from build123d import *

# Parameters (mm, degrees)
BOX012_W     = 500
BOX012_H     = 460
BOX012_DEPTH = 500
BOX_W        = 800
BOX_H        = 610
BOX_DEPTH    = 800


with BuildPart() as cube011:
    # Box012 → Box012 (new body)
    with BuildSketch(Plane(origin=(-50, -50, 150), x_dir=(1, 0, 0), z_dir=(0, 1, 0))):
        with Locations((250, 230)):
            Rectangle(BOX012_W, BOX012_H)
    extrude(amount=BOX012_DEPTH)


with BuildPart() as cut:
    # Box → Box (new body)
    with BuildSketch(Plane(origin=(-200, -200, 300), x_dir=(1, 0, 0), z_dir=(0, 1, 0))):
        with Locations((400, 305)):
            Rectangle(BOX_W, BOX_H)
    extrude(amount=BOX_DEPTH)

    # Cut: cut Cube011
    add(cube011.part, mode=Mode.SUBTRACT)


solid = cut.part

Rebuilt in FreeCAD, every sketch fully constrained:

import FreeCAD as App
import Part
import Sketcher

V = App.Vector

doc = App.newDocument("Part")
params = doc.addObject("Spreadsheet::Sheet", "Params")
for row, (alias, value) in enumerate([
    ("sketch1_width", "500 mm"),
    ("sketch1_height", "460 mm"),
    ("pad1_length", "500 mm"),
    ("sketch2_width", "800 mm"),
    ("sketch2_height", "610 mm"),
    ("pad2_length", "800 mm"),
], start=1):
    params.set(f"A{row}", alias)
    params.set(f"B{row}", "=" + value)
    params.setAlias(f"B{row}", alias)

body = doc.addObject("PartDesign::Body", "Body")

# Sketch on XZ plane
sketch1 = doc.addObject("Sketcher::SketchObject", "Sketch")
body.addObject(sketch1)
sketch1.AttachmentSupport = (doc.XZ_Plane, [""])
sketch1.MapMode = "FlatFace"
sketch1.AttachmentOffset = App.Placement(V(0, 0, 50), App.Rotation())
sketch1.addGeometry(Part.LineSegment(V(-50, -310, 0), V(-50, 150, 0)), False)
sketch1.addGeometry(Part.LineSegment(V(-50, 150, 0), V(450, 150, 0)), False)
sketch1.addGeometry(Part.LineSegment(V(450, 150, 0), V(450, -310, 0)), False)
sketch1.addGeometry(Part.LineSegment(V(450, -310, 0), V(-50, -310, 0)), False)
sketch1.addConstraint(Sketcher.Constraint("Coincident", 0, 2, 1, 1))
sketch1.addConstraint(Sketcher.Constraint("Coincident", 1, 2, 2, 1))
sketch1.addConstraint(Sketcher.Constraint("Coincident", 2, 2, 3, 1))
sketch1.addConstraint(Sketcher.Constraint("Coincident", 3, 2, 0, 1))
sketch1.addConstraint(Sketcher.Constraint("Vertical", 0))
sketch1.addConstraint(Sketcher.Constraint("Horizontal", 1))
sketch1.addConstraint(Sketcher.Constraint("Vertical", 2))
sketch1.addConstraint(Sketcher.Constraint("Horizontal", 3))
sketch1.addConstraint(Sketcher.Constraint("DistanceX", 1, 1, 1, 2, 500.0))
sketch1.addConstraint(Sketcher.Constraint("DistanceY", 0, 1, 0, 2, 460.0))
sketch1.addConstraint(Sketcher.Constraint("DistanceX", 0, 2, -1, 1, 50.0))
sketch1.addConstraint(Sketcher.Constraint("DistanceY", -1, 1, 0, 2, 150.0))
sketch1.setExpression("Constraints[8]", "Params.sketch1_width")
sketch1.setExpression("Constraints[9]", "Params.sketch1_height")
pad1 = doc.addObject("PartDesign::Pad", "Pad")
body.addObject(pad1)
pad1.Profile = sketch1
pad1.setExpression("Length", "Params.pad1_length")
pad1.Reversed = True
body2 = doc.addObject("PartDesign::Body", "Body001")

# Sketch on XZ plane
sketch2 = doc.addObject("Sketcher::SketchObject", "Sketch001")
body2.addObject(sketch2)
sketch2.AttachmentSupport = (doc.getObject("XZ_Plane001"), [""])
sketch2.MapMode = "FlatFace"
sketch2.AttachmentOffset = App.Placement(V(0, 0, 200), App.Rotation())
sketch2.addGeometry(Part.LineSegment(V(-200, -310, 0), V(-200, 300, 0)), False)
sketch2.addGeometry(Part.LineSegment(V(-200, 300, 0), V(600, 300, 0)), False)
sketch2.addGeometry(Part.LineSegment(V(600, 300, 0), V(600, -310, 0)), False)
sketch2.addGeometry(Part.LineSegment(V(600, -310, 0), V(-200, -310, 0)), False)
sketch2.addConstraint(Sketcher.Constraint("Coincident", 0, 2, 1, 1))
sketch2.addConstraint(Sketcher.Constraint("Coincident", 1, 2, 2, 1))
sketch2.addConstraint(Sketcher.Constraint("Coincident", 2, 2, 3, 1))
sketch2.addConstraint(Sketcher.Constraint("Coincident", 3, 2, 0, 1))
sketch2.addConstraint(Sketcher.Constraint("Vertical", 0))
sketch2.addConstraint(Sketcher.Constraint("Horizontal", 1))
sketch2.addConstraint(Sketcher.Constraint("Vertical", 2))
sketch2.addConstraint(Sketcher.Constraint("Horizontal", 3))
sketch2.addConstraint(Sketcher.Constraint("DistanceX", 1, 1, 1, 2, 800.0))
sketch2.addConstraint(Sketcher.Constraint("DistanceY", 0, 1, 0, 2, 610.0))
sketch2.addConstraint(Sketcher.Constraint("DistanceX", 0, 2, -1, 1, 200.0))
sketch2.addConstraint(Sketcher.Constraint("DistanceY", -1, 1, 0, 2, 300.0))
sketch2.setExpression("Constraints[8]", "Params.sketch2_width")
sketch2.setExpression("Constraints[9]", "Params.sketch2_height")
pad2 = doc.addObject("PartDesign::Pad", "Pad001")
body2.addObject(pad2)
pad2.Profile = sketch2
pad2.setExpression("Length", "Params.pad2_length")
pad2.Reversed = True
doc.recompute()

boolean = doc.addObject("PartDesign::Boolean", "Boolean")
body2.addObject(boolean)
boolean.Type = "Cut"
boolean.addObjects([body])

doc.recompute()
